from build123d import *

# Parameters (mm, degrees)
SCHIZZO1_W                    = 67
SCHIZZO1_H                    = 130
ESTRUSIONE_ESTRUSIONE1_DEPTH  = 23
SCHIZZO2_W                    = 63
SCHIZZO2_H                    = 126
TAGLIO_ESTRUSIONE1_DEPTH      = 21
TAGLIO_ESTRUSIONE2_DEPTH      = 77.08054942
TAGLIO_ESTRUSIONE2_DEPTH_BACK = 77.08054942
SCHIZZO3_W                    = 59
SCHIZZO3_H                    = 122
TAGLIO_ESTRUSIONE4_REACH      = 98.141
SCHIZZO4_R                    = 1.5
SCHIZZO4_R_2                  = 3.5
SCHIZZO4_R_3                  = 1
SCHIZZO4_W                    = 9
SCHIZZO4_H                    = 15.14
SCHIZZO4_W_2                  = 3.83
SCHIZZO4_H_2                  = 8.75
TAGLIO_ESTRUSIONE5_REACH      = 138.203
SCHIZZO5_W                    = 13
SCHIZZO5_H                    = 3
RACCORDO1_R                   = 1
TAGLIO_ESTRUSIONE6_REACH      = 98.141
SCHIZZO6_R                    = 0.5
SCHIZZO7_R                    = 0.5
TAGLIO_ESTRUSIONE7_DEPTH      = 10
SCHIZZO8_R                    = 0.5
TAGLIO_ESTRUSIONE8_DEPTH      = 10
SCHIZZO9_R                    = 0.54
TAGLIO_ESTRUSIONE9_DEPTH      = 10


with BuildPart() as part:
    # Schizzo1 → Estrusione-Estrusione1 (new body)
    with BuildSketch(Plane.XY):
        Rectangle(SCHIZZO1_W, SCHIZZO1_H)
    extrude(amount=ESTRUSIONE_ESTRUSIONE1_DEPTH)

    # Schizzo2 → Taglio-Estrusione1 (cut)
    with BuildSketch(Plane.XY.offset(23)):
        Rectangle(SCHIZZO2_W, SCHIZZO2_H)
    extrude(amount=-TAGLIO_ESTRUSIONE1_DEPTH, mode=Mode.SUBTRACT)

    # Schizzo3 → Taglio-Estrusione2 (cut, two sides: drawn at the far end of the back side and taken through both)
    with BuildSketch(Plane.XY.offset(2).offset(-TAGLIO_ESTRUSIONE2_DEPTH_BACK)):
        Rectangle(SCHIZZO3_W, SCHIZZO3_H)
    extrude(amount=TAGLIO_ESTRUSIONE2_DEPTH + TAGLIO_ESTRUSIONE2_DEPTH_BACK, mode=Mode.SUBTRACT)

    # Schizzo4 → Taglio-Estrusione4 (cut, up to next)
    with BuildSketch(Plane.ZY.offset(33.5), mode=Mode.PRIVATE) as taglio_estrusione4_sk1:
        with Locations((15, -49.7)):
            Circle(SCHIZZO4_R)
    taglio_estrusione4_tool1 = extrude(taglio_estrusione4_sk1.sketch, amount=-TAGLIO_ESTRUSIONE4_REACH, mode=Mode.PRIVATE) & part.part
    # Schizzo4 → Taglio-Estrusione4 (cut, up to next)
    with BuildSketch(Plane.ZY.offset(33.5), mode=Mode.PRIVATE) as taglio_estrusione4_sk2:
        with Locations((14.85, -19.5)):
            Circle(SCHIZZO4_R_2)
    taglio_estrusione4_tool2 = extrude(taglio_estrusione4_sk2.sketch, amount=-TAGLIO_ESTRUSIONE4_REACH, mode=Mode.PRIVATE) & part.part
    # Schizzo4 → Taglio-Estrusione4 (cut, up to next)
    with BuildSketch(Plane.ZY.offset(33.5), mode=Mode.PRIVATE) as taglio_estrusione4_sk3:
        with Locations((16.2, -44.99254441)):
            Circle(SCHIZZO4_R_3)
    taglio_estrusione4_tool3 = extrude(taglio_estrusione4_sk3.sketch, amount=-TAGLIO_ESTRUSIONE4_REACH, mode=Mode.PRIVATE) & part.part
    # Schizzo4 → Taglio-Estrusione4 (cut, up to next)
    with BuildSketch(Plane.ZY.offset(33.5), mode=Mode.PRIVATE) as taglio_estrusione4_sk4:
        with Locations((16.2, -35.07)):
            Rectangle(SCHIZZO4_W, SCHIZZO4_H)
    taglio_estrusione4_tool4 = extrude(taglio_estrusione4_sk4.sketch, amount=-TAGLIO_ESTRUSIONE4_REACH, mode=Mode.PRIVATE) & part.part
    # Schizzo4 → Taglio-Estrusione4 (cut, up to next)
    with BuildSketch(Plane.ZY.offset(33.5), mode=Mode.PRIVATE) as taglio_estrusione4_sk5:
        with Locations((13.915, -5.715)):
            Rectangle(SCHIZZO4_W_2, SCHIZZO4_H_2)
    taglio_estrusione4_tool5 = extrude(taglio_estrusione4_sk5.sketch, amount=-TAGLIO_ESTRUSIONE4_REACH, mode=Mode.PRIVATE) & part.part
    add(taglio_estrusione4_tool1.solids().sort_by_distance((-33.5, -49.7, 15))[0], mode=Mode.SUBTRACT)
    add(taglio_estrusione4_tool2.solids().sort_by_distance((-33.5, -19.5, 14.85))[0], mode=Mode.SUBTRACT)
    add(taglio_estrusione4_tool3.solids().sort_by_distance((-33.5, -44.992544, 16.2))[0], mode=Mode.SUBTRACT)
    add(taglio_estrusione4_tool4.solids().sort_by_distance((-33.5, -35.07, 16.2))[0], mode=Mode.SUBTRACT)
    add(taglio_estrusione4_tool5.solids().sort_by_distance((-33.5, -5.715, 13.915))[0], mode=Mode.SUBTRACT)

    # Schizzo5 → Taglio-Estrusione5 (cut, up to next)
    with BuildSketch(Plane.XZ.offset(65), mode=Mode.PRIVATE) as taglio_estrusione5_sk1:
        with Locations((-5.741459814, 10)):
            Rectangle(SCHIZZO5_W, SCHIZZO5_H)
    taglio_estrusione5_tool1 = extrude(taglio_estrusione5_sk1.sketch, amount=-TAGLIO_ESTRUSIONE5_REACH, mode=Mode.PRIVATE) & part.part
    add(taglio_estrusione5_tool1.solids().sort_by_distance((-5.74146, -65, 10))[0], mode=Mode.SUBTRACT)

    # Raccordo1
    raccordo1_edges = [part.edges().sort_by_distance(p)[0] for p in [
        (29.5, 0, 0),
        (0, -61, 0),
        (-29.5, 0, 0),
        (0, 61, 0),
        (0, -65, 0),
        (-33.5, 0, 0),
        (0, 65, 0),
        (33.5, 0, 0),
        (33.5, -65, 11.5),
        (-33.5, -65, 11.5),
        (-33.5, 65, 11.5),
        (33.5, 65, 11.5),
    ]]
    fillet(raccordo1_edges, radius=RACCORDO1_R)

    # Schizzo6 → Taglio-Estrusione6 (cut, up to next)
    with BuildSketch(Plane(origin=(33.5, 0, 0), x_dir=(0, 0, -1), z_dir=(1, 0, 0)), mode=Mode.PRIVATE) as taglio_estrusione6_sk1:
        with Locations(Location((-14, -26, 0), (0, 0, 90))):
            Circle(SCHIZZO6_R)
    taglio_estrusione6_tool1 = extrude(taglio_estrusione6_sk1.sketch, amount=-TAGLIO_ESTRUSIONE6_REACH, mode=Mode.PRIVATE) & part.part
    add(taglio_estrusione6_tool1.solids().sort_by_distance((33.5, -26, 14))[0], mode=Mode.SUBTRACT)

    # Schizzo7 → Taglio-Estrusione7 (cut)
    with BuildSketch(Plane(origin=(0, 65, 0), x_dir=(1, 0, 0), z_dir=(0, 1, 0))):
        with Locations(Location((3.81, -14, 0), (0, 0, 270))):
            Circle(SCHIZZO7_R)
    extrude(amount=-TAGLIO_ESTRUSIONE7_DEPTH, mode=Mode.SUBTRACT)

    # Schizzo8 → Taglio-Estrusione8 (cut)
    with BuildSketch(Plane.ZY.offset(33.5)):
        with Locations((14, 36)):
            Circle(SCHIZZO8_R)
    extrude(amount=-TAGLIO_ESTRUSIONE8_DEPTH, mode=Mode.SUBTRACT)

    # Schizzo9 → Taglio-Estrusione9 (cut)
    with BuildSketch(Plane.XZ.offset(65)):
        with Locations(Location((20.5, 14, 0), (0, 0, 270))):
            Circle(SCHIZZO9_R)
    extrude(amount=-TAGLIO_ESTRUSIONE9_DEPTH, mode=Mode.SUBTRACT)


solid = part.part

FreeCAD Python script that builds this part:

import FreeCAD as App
import Part
import Sketcher


def edges_at(feature, points):
    """Names of the edges that pass closest to the given points."""
    edges = feature.Shape.Edges
    near = lambda p: min(range(len(edges)), key=lambda i: edges[i].distToShape(Part.Vertex(*p))[0])
    return sorted({f"Edge{near(p) + 1}" for p in points})

doc = App.newDocument("Part")
body = doc.addObject("PartDesign::Body", "Body")

sketch1 = doc.addObject("Sketcher::SketchObject", "Sketch")
body.addObject(sketch1)
sketch1.AttachmentSupport = (doc.XY_Plane, [""])
sketch1.MapMode = "FlatFace"
sketch1.addGeometry(Part.LineSegment(App.Vector(-34, 65, 0), App.Vector(-34, -65, 0)), False)
sketch1.addGeometry(Part.LineSegment(App.Vector(-34, -65, 0), App.Vector(34, -65, 0)), False)
sketch1.addGeometry(Part.LineSegment(App.Vector(34, -65, 0), App.Vector(34, 65, 0)), False)
sketch1.addGeometry(Part.LineSegment(App.Vector(34, 65, 0), App.Vector(-34, 65, 0)), False)
sketch1.addConstraint(Sketcher.Constraint("Coincident", 0, 2, 1, 1))
sketch1.addConstraint(Sketcher.Constraint("Coincident", 1, 2, 2, 1))
sketch1.addConstraint(Sketcher.Constraint("Coincident", 2, 2, 3, 1))
sketch1.addConstraint(Sketcher.Constraint("Coincident", 3, 2, 0, 1))
sketch1.addConstraint(Sketcher.Constraint("Vertical", 0))
sketch1.addConstraint(Sketcher.Constraint("Horizontal", 1))
sketch1.addConstraint(Sketcher.Constraint("Vertical", 2))
sketch1.addConstraint(Sketcher.Constraint("Horizontal", 3))
sketch1.addConstraint(Sketcher.Constraint("Symmetric", 0, 2, 2, 2, -1, 1))
sketch1.addConstraint(Sketcher.Constraint("DistanceX", 1, 1, 1, 2, 67.0))
sketch1.addConstraint(Sketcher.Constraint("DistanceY", 0, 2, 0, 1, 130.0))
pad1 = doc.addObject("PartDesign::Pad", "Pad")
body.addObject(pad1)
pad1.Profile = sketch1
pad1.Length = 23

sketch2 = doc.addObject("Sketcher::SketchObject", "Sketch001")
body.addObject(sketch2)
sketch2.AttachmentSupport = (doc.XY_Plane, [""])
sketch2.MapMode = "FlatFace"
sketch2.AttachmentOffset = App.Placement(App.Vector(0, 0, 23), App.Rotation())
sketch2.addGeometry(Part.LineSegment(App.Vector(-32, 63, 0), App.Vector(-32, -63, 0)), False)
sketch2.addGeometry(Part.LineSegment(App.Vector(-32, -63, 0), App.Vector(32, -63, 0)), False)
sketch2.addGeometry(Part.LineSegment(App.Vector(32, -63, 0), App.Vector(32, 63, 0)), False)
sketch2.addGeometry(Part.LineSegment(App.Vector(32, 63, 0), App.Vector(-32, 63, 0)), False)
sketch2.addConstraint(Sketcher.Constraint("Coincident", 0, 2, 1, 1))
sketch2.addConstraint(Sketcher.Constraint("Coincident", 1, 2, 2, 1))
sketch2.addConstraint(Sketcher.Constraint("Coincident", 2, 2, 3, 1))
sketch2.addConstraint(Sketcher.Constraint("Coincident", 3, 2, 0, 1))
sketch2.addConstraint(Sketcher.Constraint("Vertical", 0))
sketch2.addConstraint(Sketcher.Constraint("Horizontal", 1))
sketch2.addConstraint(Sketcher.Constraint("Vertical", 2))
sketch2.addConstraint(Sketcher.Constraint("Horizontal", 3))
sketch2.addConstraint(Sketcher.Constraint("Symmetric", 0, 2, 2, 2, -1, 1))
sketch2.addConstraint(Sketcher.Constraint("DistanceX", 1, 1, 1, 2, 63.0))
sketch2.addConstraint(Sketcher.Constraint("DistanceY", 0, 2, 0, 1, 126.0))
pocket1 = doc.addObject("PartDesign::Pocket", "Pocket")
body.addObject(pocket1)
pocket1.Profile = sketch2
pocket1.Length = 21

sketch3 = doc.addObject("Sketcher::SketchObject", "Sketch002")
body.addObject(sketch3)
sketch3.AttachmentSupport = (doc.XY_Plane, [""])
sketch3.MapMode = "FlatFace"
sketch3.AttachmentOffset = App.Placement(App.Vector(0, 0, 2), App.Rotation())
sketch3.addGeometry(Part.LineSegment(App.Vector(-30, 61, 0), App.Vector(-30, -61, 0)), False)
sketch3.addGeometry(Part.LineSegment(App.Vector(-30, -61, 0), App.Vector(30, -61, 0)), False)
sketch3.addGeometry(Part.LineSegment(App.Vector(30, -61, 0), App.Vector(30, 61, 0)), False)
sketch3.addGeometry(Part.LineSegment(App.Vector(30, 61, 0), App.Vector(-30, 61, 0)), False)
sketch3.addConstraint(Sketcher.Constraint("Coincident", 0, 2, 1, 1))
sketch3.addConstraint(Sketcher.Constraint("Coincident", 1, 2, 2, 1))
sketch3.addConstraint(Sketcher.Constraint("Coincident", 2, 2, 3, 1))
sketch3.addConstraint(Sketcher.Constraint("Coincident", 3, 2, 0, 1))
sketch3.addConstraint(Sketcher.Constraint("Vertical", 0))
sketch3.addConstraint(Sketcher.Constraint("Horizontal", 1))
sketch3.addConstraint(Sketcher.Constraint("Vertical", 2))
sketch3.addConstraint(Sketcher.Constraint("Horizontal", 3))
sketch3.addConstraint(Sketcher.Constraint("Symmetric", 0, 2, 2, 2, -1, 1))
sketch3.addConstraint(Sketcher.Constraint("DistanceX", 1, 1, 1, 2, 59.0))
sketch3.addConstraint(Sketcher.Constraint("DistanceY", 0, 2, 0, 1, 122.0))
pocket2 = doc.addObject("PartDesign::Pocket", "Pocket001")
body.addObject(pocket2)
pocket2.Profile = sketch3
pocket2.Type = "ThroughAll"
pocket2.Midplane = True

sketch4 = doc.addObject("Sketcher::SketchObject", "Sketch003")
body.addObject(sketch4)
sketch4.AttachmentSupport = (doc.YZ_Plane, [""])
sketch4.MapMode = "FlatFace"
sketch4.AttachmentOffset = App.Placement(App.Vector(0, 0, -33.5), App.Rotation())
sketch4.addGeometry(Part.Circle(App.Vector(-49.7, 15, 0), App.Vector(0, 0, 1), 1.5), False)
sketch4.addConstraint(Sketcher.Constraint("Diameter", 0, 3.0))
sketch4.addConstraint(Sketcher.Constraint("DistanceY", -1, 1, 0, 3, 15.0))
sketch4.addConstraint(Sketcher.Constraint("DistanceX", 0, 3, -1, 1, 49.7))
pocket3 = doc.addObject("PartDesign::Pocket", "Pocket002")
body.addObject(pocket3)
pocket3.Profile = sketch4
pocket3.Type = "UpToFirst"
pocket3.Reversed = True

sketch5 = doc.addObject("Sketcher::SketchObject", "Sketch004")
body.addObject(sketch5)
sketch5.AttachmentSupport = (doc.YZ_Plane, [""])
sketch5.MapMode = "FlatFace"
sketch5.AttachmentOffset = App.Placement(App.Vector(0, 0, -33.5), App.Rotation())
sketch5.addGeometry(Part.Circle(App.Vector(-19.5, 14.8, 0), App.Vector(0, 0, 1), 3.5), False)
sketch5.addConstraint(Sketcher.Constraint("Diameter", 0, 7.0))
sketch5.addConstraint(Sketcher.Constraint("DistanceX", 0, 3, -1, 1, 19.5))
sketch5.addConstraint(Sketcher.Constraint("DistanceY", -1, 1, 0, 3, 14.85))
pocket4 = doc.addObject("PartDesign::Pocket", "Pocket003")
body.addObject(pocket4)
pocket4.Profile = sketch5
pocket4.Type = "UpToFirst"
pocket4.Reversed = True

sketch6 = doc.addObject("Sketcher::SketchObject", "Sketch005")
body.addObject(sketch6)
sketch6.AttachmentSupport = (doc.YZ_Plane, [""])
sketch6.MapMode = "FlatFace"
sketch6.AttachmentOffset = App.Placement(App.Vector(0, 0, -33.5), App.Rotation())
sketch6.addGeometry(Part.Circle(App.Vector(-45, 16.2, 0), App.Vector(0, 0, 1), 1), False)
sketch6.addConstraint(Sketcher.Constraint("Diameter", 0, 2.0))
sketch6.addConstraint(Sketcher.Constraint("DistanceY", -1, 1, 0, 3, 16.2))
sketch6.addConstraint(Sketcher.Constraint("DistanceX", 0, 3, -1, 1, 44.992544))
pocket5 = doc.addObject("PartDesign::Pocket", "Pocket004")
body.addObject(pocket5)
pocket5.Profile = sketch6
pocket5.Type = "UpToFirst"
pocket5.Reversed = True

sketch7 = doc.addObject("Sketcher::SketchObject", "Sketch006")
body.addObject(sketch7)
sketch7.AttachmentSupport = (doc.YZ_Plane, [""])
sketch7.MapMode = "FlatFace"
sketch7.AttachmentOffset = App.Placement(App.Vector(0, 0, -33.5), App.Rotation())
sketch7.addGeometry(Part.LineSegment(App.Vector(-28, 12, 0), App.Vector(-43, 12, 0)), False)
sketch7.addGeometry(Part.LineSegment(App.Vector(-43, 12, 0), App.Vector(-43, 21, 0)), False)
sketch7.addGeometry(Part.LineSegment(App.Vector(-43, 21, 0), App.Vector(-28, 21, 0)), False)
sketch7.addGeometry(Part.LineSegment(App.Vector(-28, 21, 0), App.Vector(-28, 12, 0)), False)
sketch7.addConstraint(Sketcher.Constraint("Coincident", 0, 2, 1, 1))
sketch7.addConstraint(Sketcher.Constraint("Coincident", 1, 2, 2, 1))
sketch7.addConstraint(Sketcher.Constraint("Coincident", 2, 2, 3, 1))
sketch7.addConstraint(Sketcher.Constraint("Coincident", 3, 2, 0, 1))
sketch7.addConstraint(Sketcher.Constraint("Horizontal", 0))
sketch7.addConstraint(Sketcher.Constraint("Vertical", 1))
sketch7.addConstraint(Sketcher.Constraint("Horizontal", 2))
sketch7.addConstraint(Sketcher.Constraint("Vertical", 3))
sketch7.addConstraint(Sketcher.Constraint("DistanceY", 1, 1, 1, 2, 9.0))
sketch7.addConstraint(Sketcher.Constraint("DistanceX", 0, 2, 0, 1, 15.14))
sketch7.addConstraint(Sketcher.Constraint("DistanceY", -1, 1, 0, 2, 11.7))
sketch7.addConstraint(Sketcher.Constraint("DistanceX", 2, 2, -1, 1, 27.5))
pocket6 = doc.addObject("PartDesign::Pocket", "Pocket005")
body.addObject(pocket6)
pocket6.Profile = sketch7
pocket6.Type = "UpToFirst"
pocket6.Reversed = True

sketch8 = doc.addObject("Sketcher::SketchObject", "Sketch007")
body.addObject(sketch8)
sketch8.AttachmentSupport = (doc.YZ_Plane, [""])
sketch8.MapMode = "FlatFace"
sketch8.AttachmentOffset = App.Placement(App.Vector(0, 0, -33.5), App.Rotation())
sketch8.addGeometry(Part.LineSegment(App.Vector(-1.3, 12, 0), App.Vector(-10.1, 12, 0)), False)
sketch8.addGeometry(Part.LineSegment(App.Vector(-10.1, 12, 0), App.Vector(-10.1, 15.8, 0)), False)
sketch8.addGeometry(Part.LineSegment(App.Vector(-10.1, 15.8, 0), App.Vector(-1.3, 15.8, 0)), False)
sketch8.addGeometry(Part.LineSegment(App.Vector(-1.3, 15.8, 0), App.Vector(-1.3, 12, 0)), False)
sketch8.addConstraint(Sketcher.Constraint("Coincident", 0, 2, 1, 1))
sketch8.addConstraint(Sketcher.Constraint("Coincident", 1, 2, 2, 1))
sketch8.addConstraint(Sketcher.Constraint("Coincident", 2, 2, 3, 1))
sketch8.addConstraint(Sketcher.Constraint("Coincident", 3, 2, 0, 1))
sketch8.addConstraint(Sketcher.Constraint("Horizontal", 0))
sketch8.addConstraint(Sketcher.Constraint("Vertical", 1))
sketch8.addConstraint(Sketcher.Constraint("Horizontal", 2))
sketch8.addConstraint(Sketcher.Constraint("Vertical", 3))
sketch8.addConstraint(Sketcher.Constraint("DistanceY", -1, 1, 0, 2, 12.0))
sketch8.addConstraint(Sketcher.Constraint("DistanceX", 0, 2, 0, 1, 8.75))
sketch8.addConstraint(Sketcher.Constraint("DistanceY", 1, 1, 1, 2, 3.83))
sketch8.addConstraint(Sketcher.Constraint("DistanceX", 0, 2, -1, 1, 10.09))
pocket7 = doc.addObject("PartDesign::Pocket", "Pocket006")
body.addObject(pocket7)
pocket7.Profile = sketch8
pocket7.Type = "UpToFirst"
pocket7.Reversed = True

sketch9 = doc.addObject("Sketcher::SketchObject", "Sketch008")
body.addObject(sketch9)
sketch9.AttachmentSupport = (doc.XZ_Plane, [""])
sketch9.MapMode = "FlatFace"
sketch9.AttachmentOffset = App.Placement(App.Vector(0, 0, 65), App.Rotation())
sketch9.addGeometry(Part.LineSegment(App.Vector(-12.2, 11.5, 0), App.Vector(-12.2, 8.5, 0)), False)
sketch9.addGeometry(Part.LineSegment(App.Vector(-12.2, 8.5, 0), App.Vector(0.8, 8.5, 0)), False)
sketch9.addGeometry(Part.LineSegment(App.Vector(0.8, 8.5, 0), App.Vector(0.8, 11.5, 0)), False)
sketch9.addGeometry(Part.LineSegment(App.Vector(0.8, 11.5, 0), App.Vector(-12.2, 11.5, 0)), False)
sketch9.addConstraint(Sketcher.Constraint("Coincident", 0, 2, 1, 1))
sketch9.addConstraint(Sketcher.Constraint("Coincident", 1, 2, 2, 1))
sketch9.addConstraint(Sketcher.Constraint("Coincident", 2, 2, 3, 1))
sketch9.addConstraint(Sketcher.Constraint("Coincident", 3, 2, 0, 1))
sketch9.addConstraint(Sketcher.Constraint("Vertical", 0))
sketch9.addConstraint(Sketcher.Constraint("Horizontal", 1))
sketch9.addConstraint(Sketcher.Constraint("Vertical", 2))
sketch9.addConstraint(Sketcher.Constraint("Horizontal", 3))
sketch9.addConstraint(Sketcher.Constraint("DistanceX", 1, 1, 1, 2, 13.0))
sketch9.addConstraint(Sketcher.Constraint("DistanceY", 0, 2, 0, 1, 3.0))
sketch9.addConstraint(Sketcher.Constraint("DistanceY", -1, 1, 0, 2, 8.5))
sketch9.addConstraint(Sketcher.Constraint("DistanceX", 0, 2, -1, 1, 12.24146))
pocket8 = doc.addObject("PartDesign::Pocket", "Pocket007")
body.addObject(pocket8)
pocket8.Profile = sketch9
pocket8.Type = "UpToFirst"
doc.recompute()

fillet = doc.addObject("PartDesign::Fillet", "Fillet")
body.addObject(fillet)
fillet.Base = (pocket8, edges_at(pocket8, [
    (29.5, 0, 0),
    (0, -61, 0),
    (-29.5, 0, 0),
    (0, 61, 0),
    (0, -65, 0),
    (-33.5, 0, 0),
    (0, 65, 0),
    (33.5, 0, 0),
    (33.5, -65, 11.5),
    (-33.5, -65, 11.5),
    (-33.5, 65, 11.5),
    (33.5, 65, 11.5),
]))
fillet.Radius = 1

sketch10 = doc.addObject("Sketcher::SketchObject", "Sketch009")
body.addObject(sketch10)
sketch10.AttachmentSupport = (doc.YZ_Plane, [""])
sketch10.MapMode = "FlatFace"
sketch10.AttachmentOffset = App.Placement(App.Vector(0, 0, 33.5), App.Rotation())
sketch10.addGeometry(Part.Circle(App.Vector(-26, 14, 0), App.Vector(0, 0, 1), 0.5), False)
sketch10.addConstraint(Sketcher.Constraint("Diameter", 0, 1.0))
sketch10.addConstraint(Sketcher.Constraint("DistanceX", 0, 3, -1, 1, 26.0))
sketch10.addConstraint(Sketcher.Constraint("DistanceY", -1, 1, 0, 3, 14.0))
pocket9 = doc.addObject("PartDesign::Pocket", "Pocket008")
body.addObject(pocket9)
pocket9.Profile = sketch10
pocket9.Type = "UpToFirst"

sketch11 = doc.addObject("Sketcher::SketchObject", "Sketch010")
body.addObject(sketch11)
sketch11.AttachmentSupport = (doc.XZ_Plane, [""])
sketch11.MapMode = "FlatFace"
sketch11.AttachmentOffset = App.Placement(App.Vector(0, 0, -65), App.Rotation())
sketch11.addGeometry(Part.Circle(App.Vector(3.8, 14, 0), App.Vector(0, 0, 1), 0.5), False)
sketch11.addConstraint(Sketcher.Constraint("Diameter", 0, 1.0))
sketch11.addConstraint(Sketcher.Constraint("DistanceY", -1, 1, 0, 3, 14.0))
sketch11.addConstraint(Sketcher.Constraint("DistanceX", -1, 1, 0, 3, 3.81))
pocket10 = doc.addObject("PartDesign::Pocket", "Pocket009")
body.addObject(pocket10)
pocket10.Profile = sketch11
pocket10.Length = 10
pocket10.Reversed = True

sketch12 = doc.addObject("Sketcher::SketchObject", "Sketch011")
body.addObject(sketch12)
sketch12.AttachmentSupport = (doc.YZ_Plane, [""])
sketch12.MapMode = "FlatFace"
sketch12.AttachmentOffset = App.Placement(App.Vector(0, 0, -33.5), App.Rotation())
sketch12.addGeometry(Part.Circle(App.Vector(36, 14, 0), App.Vector(0, 0, 1), 0.5), False)
sketch12.addConstraint(Sketcher.Constraint("Diameter", 0, 1.0))
sketch12.addConstraint(Sketcher.Constraint("DistanceX", -1, 1, 0, 3, 36.0))
sketch12.addConstraint(Sketcher.Constraint("DistanceY", -1, 1, 0, 3, 14.0))
pocket11 = doc.addObject("PartDesign::Pocket", "Pocket010")
body.addObject(pocket11)
pocket11.Profile = sketch12
pocket11.Length = 10
pocket11.Reversed = True

sketch13 = doc.addObject("Sketcher::SketchObject", "Sketch012")
body.addObject(sketch13)
sketch13.AttachmentSupport = (doc.XZ_Plane, [""])
sketch13.MapMode = "FlatFace"
sketch13.AttachmentOffset = App.Placement(App.Vector(0, 0, 65), App.Rotation())
sketch13.addGeometry(Part.Circle(App.Vector(20.5, 14, 0), App.Vector(0, 0, 1), 0.5), False)
sketch13.addConstraint(Sketcher.Constraint("Diameter", 0, 1.08))
sketch13.addConstraint(Sketcher.Constraint("DistanceY", -1, 1, 0, 3, 14.0))
sketch13.addConstraint(Sketcher.Constraint("DistanceX", -1, 1, 0, 3, 20.5))
pocket12 = doc.addObject("PartDesign::Pocket", "Pocket011")
body.addObject(pocket12)
pocket12.Profile = sketch13
pocket12.Length = 10

doc.recompute()
